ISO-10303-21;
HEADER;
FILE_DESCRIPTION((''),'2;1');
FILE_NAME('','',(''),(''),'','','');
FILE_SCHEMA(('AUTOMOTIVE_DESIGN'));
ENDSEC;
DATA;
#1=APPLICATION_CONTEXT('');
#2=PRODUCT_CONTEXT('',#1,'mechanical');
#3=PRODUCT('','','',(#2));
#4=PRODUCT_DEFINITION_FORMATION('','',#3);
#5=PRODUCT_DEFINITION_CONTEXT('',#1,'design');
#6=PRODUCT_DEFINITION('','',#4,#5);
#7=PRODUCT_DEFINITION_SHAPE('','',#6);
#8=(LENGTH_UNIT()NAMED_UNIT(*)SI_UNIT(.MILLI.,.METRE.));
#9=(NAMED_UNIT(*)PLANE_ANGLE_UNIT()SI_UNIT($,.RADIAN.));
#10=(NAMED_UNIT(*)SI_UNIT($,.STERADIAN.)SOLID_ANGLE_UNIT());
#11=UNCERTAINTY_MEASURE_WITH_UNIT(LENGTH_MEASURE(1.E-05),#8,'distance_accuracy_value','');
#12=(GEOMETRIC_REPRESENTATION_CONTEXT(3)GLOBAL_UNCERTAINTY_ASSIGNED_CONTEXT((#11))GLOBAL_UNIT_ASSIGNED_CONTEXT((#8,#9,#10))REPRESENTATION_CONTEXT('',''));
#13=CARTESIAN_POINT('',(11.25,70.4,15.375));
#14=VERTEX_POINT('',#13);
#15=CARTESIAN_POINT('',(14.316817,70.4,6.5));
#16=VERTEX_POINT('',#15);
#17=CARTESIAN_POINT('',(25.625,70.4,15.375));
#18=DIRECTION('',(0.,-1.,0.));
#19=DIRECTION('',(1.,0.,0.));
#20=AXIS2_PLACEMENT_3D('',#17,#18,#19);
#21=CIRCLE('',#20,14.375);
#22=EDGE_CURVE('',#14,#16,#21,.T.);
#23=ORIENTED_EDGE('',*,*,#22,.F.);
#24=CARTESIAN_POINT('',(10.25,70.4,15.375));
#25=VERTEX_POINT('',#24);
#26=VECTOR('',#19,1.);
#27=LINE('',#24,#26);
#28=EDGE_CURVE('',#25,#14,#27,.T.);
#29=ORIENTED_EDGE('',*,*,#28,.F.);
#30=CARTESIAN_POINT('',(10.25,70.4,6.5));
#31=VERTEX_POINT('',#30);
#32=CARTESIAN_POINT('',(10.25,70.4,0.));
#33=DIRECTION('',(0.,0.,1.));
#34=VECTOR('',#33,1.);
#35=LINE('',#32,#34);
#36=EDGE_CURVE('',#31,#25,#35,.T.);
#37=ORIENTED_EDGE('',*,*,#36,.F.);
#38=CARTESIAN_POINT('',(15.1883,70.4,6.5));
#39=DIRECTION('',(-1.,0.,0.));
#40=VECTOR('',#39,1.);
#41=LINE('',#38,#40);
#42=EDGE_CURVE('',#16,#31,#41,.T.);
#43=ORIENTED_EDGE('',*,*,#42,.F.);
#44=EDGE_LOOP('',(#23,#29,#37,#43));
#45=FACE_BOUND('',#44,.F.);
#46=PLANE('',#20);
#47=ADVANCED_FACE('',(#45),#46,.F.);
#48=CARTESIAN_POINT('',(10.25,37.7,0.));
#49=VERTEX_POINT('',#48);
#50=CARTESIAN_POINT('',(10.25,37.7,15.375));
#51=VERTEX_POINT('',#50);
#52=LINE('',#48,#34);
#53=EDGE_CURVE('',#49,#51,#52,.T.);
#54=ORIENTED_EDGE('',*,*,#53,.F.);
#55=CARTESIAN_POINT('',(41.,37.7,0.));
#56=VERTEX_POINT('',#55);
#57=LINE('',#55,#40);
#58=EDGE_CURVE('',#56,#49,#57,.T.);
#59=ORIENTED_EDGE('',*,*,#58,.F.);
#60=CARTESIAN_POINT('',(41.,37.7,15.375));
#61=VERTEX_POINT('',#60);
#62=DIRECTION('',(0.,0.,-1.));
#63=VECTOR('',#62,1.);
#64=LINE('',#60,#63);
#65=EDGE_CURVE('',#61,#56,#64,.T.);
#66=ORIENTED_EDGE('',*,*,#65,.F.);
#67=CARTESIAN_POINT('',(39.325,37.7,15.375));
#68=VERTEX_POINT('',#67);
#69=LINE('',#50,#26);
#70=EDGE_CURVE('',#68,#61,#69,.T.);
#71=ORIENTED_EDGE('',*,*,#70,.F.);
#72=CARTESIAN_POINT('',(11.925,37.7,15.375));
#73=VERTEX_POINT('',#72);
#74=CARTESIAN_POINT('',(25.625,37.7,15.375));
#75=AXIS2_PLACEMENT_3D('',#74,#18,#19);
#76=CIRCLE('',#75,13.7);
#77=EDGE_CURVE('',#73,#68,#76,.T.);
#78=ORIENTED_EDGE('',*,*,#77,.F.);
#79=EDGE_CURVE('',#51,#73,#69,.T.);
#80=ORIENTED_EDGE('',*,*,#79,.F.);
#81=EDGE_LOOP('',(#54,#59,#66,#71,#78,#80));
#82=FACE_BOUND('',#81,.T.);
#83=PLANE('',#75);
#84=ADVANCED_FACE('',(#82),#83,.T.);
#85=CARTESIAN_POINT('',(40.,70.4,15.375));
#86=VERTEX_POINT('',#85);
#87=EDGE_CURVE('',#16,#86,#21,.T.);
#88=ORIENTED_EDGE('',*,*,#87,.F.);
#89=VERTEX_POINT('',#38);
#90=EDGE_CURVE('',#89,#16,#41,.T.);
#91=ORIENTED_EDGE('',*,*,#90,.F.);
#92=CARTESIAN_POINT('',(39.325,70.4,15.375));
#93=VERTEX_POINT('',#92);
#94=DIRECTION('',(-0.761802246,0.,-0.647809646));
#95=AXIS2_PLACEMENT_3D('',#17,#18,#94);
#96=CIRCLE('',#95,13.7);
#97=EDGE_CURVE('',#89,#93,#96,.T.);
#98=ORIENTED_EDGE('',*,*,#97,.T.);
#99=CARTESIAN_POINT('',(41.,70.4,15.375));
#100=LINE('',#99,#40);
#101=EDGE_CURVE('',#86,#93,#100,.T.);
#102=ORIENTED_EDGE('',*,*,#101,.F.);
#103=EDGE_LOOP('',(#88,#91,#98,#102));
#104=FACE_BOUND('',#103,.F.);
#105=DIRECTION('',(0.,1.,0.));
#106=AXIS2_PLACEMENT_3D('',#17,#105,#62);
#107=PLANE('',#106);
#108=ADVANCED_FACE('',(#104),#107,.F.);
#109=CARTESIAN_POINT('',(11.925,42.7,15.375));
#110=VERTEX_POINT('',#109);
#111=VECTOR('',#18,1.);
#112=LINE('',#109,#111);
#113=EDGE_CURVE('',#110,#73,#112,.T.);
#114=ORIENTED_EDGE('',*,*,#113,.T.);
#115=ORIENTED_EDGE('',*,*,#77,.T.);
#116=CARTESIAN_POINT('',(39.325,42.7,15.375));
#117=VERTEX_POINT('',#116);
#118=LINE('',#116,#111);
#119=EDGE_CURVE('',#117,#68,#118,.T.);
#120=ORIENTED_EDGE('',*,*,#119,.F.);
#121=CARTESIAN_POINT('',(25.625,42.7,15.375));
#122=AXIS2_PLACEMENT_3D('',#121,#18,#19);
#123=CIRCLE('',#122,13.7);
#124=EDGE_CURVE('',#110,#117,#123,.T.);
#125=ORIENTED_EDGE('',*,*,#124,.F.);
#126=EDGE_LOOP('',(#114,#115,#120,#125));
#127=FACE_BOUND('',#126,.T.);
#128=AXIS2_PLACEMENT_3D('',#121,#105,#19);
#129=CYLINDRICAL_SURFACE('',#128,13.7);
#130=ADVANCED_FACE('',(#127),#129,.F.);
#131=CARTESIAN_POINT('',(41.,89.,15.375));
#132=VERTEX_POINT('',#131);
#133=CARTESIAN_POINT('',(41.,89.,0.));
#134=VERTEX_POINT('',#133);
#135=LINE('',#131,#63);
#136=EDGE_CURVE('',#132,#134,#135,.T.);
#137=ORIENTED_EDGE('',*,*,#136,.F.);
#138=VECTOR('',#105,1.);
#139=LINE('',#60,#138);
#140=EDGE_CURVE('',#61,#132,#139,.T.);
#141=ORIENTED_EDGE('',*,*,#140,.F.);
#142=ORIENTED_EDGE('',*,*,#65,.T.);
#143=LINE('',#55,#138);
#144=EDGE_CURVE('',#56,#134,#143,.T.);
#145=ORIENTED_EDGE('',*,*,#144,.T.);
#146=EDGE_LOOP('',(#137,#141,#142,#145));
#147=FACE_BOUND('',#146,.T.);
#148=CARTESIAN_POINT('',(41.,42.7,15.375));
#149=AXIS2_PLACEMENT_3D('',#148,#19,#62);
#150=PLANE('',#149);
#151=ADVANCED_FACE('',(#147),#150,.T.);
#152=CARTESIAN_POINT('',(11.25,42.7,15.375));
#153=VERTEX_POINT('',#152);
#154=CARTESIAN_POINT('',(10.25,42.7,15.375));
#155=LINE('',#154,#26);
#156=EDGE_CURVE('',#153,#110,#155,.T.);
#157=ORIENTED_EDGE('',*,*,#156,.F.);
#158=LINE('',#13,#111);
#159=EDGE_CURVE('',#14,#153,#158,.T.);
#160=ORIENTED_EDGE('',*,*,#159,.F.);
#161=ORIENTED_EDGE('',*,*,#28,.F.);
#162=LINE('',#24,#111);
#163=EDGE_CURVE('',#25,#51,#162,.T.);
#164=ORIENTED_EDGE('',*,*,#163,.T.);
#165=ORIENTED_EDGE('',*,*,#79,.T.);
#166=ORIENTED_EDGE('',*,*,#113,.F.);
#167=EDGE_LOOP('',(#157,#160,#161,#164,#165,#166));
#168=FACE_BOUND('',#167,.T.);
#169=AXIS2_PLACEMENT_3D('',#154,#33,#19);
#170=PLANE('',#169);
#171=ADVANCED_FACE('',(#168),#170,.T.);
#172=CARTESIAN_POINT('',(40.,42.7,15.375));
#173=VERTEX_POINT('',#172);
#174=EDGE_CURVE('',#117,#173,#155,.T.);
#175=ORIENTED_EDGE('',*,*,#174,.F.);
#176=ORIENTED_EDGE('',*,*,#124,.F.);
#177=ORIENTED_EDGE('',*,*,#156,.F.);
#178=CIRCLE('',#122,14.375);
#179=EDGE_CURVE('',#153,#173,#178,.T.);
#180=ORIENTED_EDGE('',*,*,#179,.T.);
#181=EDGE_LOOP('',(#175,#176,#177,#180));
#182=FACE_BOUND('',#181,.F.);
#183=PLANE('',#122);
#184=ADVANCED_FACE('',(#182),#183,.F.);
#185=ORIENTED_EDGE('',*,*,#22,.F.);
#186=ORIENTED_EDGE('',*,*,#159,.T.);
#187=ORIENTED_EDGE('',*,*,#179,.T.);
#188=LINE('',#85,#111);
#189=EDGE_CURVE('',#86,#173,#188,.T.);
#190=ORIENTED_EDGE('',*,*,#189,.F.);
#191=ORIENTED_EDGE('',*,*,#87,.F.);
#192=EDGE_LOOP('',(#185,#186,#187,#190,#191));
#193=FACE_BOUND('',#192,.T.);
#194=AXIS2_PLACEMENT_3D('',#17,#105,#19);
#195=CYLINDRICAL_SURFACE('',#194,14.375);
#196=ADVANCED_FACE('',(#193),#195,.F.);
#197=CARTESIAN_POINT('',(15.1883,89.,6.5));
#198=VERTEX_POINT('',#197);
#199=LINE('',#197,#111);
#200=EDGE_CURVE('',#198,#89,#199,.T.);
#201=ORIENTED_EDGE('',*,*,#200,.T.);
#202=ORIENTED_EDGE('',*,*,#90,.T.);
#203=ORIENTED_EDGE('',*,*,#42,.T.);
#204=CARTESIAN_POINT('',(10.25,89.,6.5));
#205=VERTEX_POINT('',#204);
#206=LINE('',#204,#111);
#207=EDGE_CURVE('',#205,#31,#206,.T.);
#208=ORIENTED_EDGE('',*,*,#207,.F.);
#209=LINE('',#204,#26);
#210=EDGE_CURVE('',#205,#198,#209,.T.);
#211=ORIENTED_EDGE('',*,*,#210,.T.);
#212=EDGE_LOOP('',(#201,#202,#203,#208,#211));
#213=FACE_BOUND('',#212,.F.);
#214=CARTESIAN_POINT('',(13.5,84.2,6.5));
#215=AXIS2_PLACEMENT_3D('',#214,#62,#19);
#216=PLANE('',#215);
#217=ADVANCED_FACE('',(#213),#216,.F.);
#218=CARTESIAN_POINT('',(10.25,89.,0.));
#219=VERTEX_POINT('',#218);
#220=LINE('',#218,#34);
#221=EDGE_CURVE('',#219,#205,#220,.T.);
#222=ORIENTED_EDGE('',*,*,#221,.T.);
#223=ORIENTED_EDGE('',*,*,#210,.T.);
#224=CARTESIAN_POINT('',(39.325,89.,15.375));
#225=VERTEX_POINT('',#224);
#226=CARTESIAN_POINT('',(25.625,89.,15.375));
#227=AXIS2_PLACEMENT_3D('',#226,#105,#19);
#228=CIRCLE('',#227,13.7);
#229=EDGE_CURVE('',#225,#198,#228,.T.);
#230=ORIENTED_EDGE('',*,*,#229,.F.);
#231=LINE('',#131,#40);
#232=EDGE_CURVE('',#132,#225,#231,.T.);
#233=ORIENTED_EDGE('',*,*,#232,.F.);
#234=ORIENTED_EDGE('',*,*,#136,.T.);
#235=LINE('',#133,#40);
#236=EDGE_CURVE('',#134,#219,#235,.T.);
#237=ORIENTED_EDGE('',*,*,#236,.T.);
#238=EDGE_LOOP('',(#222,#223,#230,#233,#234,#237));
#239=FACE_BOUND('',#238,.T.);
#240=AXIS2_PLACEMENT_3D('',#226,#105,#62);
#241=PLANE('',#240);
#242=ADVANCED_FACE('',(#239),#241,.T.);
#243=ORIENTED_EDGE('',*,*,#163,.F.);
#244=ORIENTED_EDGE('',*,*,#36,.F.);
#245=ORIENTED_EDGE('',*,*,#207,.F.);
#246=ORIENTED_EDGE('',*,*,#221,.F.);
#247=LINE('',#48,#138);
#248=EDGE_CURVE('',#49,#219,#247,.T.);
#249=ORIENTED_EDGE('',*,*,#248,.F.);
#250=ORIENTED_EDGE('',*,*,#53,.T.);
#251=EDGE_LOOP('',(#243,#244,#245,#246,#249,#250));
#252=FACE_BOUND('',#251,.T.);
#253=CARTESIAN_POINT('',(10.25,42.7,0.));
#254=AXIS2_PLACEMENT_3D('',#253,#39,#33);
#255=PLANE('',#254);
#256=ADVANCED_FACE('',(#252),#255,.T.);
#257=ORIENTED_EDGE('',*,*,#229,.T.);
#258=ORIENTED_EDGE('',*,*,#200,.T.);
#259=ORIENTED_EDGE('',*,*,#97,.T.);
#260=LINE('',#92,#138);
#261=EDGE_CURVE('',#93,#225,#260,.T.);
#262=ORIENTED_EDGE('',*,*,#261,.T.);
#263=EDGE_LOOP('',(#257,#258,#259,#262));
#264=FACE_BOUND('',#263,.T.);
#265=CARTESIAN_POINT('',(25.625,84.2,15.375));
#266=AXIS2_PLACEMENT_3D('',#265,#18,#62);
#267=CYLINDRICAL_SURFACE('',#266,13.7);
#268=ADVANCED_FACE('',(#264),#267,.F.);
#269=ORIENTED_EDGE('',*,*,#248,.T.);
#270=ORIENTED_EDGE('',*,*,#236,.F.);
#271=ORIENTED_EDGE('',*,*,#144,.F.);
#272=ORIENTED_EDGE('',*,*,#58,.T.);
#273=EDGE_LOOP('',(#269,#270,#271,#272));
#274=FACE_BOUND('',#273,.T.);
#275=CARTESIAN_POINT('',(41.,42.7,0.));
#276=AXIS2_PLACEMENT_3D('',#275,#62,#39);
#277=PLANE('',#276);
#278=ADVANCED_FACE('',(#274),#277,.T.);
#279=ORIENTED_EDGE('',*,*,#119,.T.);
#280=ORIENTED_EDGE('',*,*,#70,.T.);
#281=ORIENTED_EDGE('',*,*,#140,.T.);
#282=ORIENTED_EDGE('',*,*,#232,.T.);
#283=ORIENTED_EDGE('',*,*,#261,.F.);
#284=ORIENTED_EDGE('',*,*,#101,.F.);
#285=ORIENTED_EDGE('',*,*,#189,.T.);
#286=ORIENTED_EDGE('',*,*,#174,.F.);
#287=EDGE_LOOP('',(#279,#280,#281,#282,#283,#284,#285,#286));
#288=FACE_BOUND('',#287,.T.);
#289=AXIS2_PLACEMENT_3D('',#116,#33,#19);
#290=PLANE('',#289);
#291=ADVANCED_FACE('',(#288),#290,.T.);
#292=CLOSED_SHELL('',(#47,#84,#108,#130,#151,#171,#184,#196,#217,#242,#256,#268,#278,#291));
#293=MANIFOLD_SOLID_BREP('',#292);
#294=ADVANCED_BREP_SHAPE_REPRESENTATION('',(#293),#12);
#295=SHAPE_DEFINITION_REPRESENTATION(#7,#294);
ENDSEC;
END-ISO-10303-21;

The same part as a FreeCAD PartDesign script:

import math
import FreeCAD as App
import Part
import Sketcher

V = App.Vector
Q = App.Units.Quantity

doc = App.newDocument("Part")
body = doc.addObject("PartDesign::Body", "Body")

# Sketch on XZ plane
sketch1 = body.newObject("Sketcher::SketchObject", "Sketch")
sketch1.AttachmentSupport = (doc.getObject("XZ_Plane"), [""])
sketch1.MapMode = "FlatFace"
sketch1.AttachmentOffset = App.Placement(V(0, 0, -84.2), App.Rotation())
sketch1.addGeometry([
    Part.LineSegment(V(39.3, 15.4, 0), V(41, 15.4, 0)),  # 0
    Part.LineSegment(V(41, 15.4, 0), V(41, 0, 0)),  # 1
    Part.LineSegment(V(41, 0, 0), V(10.2, 0, 0)),  # 2
    Part.LineSegment(V(10.2, 0, 0), V(10.2, 6.5, 0)),  # 3
    Part.LineSegment(V(10.2, 6.5, 0), V(15.2, 6.5, 0)),  # 4
    Part.ArcOfCircle(Part.Circle(V(25.6, 15.4, 0), V(0, 0, 1), 13.7), math.radians(-140), math.radians(0)),  # 5
], False)
sketch1.addConstraint([
    Sketcher.Constraint("Coincident", 0, 2, 1, 1),
    Sketcher.Constraint("Coincident", 1, 2, 2, 1),
    Sketcher.Constraint("Coincident", 2, 2, 3, 1),
    Sketcher.Constraint("Coincident", 3, 2, 4, 1),
    Sketcher.Constraint("Coincident", 4, 2, 5, 1),
    Sketcher.Constraint("Coincident", 5, 2, 0, 1),
    Sketcher.Constraint("Horizontal", 0),
    Sketcher.Constraint("Vertical", 1),
    Sketcher.Constraint("Horizontal", 2),
    Sketcher.Constraint("Vertical", 3),
    Sketcher.Constraint("Horizontal", 4),
    Sketcher.Constraint("PointOnObject", 1, 2, -1),
    Sketcher.Constraint("Horizontal", 5, 3, 0, 2),
    Sketcher.Constraint("DistanceY", 3, 1, 3, 2, Q("6.5 mm")),
    Sketcher.Constraint("Radius", 5, Q("13.7 mm")),
    Sketcher.Constraint("DistanceY", 1, 2, 1, 1, Q("15.375 mm")),
    Sketcher.Constraint("DistanceX", -1, 1, 0, 2, Q("41 mm")),
    Sketcher.Constraint("DistanceX", 5, 3, 0, 2, Q("15.375 mm")),
    Sketcher.Constraint("DistanceX", 2, 2, 5, 3, Q("15.375 mm")),
])
pad1 = body.newObject("PartDesign::Pad", "Pad")
pad1.Profile = sketch1
pad1.Type = "TwoLengths"
pad1.Length = 4.8
pad1.Length2 = 13.8
pad1.Reversed = True

# Sketch on XZ plane
sketch2 = body.newObject("Sketcher::SketchObject", "Sketch001")
sketch2.AttachmentSupport = (doc.getObject("XZ_Plane"), [""])
sketch2.MapMode = "FlatFace"
sketch2.AttachmentOffset = App.Placement(V(0, 0, -70.4), App.Rotation())
sketch2.addGeometry([
    Part.LineSegment(V(41, 15.4, 0), V(40, 15.4, 0)),  # 0
    Part.ArcOfCircle(Part.Circle(V(25.6, 15.4, 0), V(0, 0, 1), 14.4), math.radians(180), math.radians(360)),  # 1
    Part.LineSegment(V(11.2, 15.4, 0), V(10.2, 15.4, 0)),  # 2
    Part.LineSegment(V(10.2, 15.4, 0), V(10.2, 0, 0)),  # 3
    Part.LineSegment(V(10.2, 0, 0), V(41, 0, 0)),  # 4
    Part.LineSegment(V(41, 0, 0), V(41, 15.4, 0)),  # 5
], False)
sketch2.addConstraint([
    Sketcher.Constraint("Coincident", 0, 2, 1, 2),
    Sketcher.Constraint("Coincident", 1, 1, 2, 1),
    Sketcher.Constraint("Coincident", 2, 2, 3, 1),
    Sketcher.Constraint("Coincident", 3, 2, 4, 1),
    Sketcher.Constraint("Coincident", 4, 2, 5, 1),
    Sketcher.Constraint("Coincident", 5, 2, 0, 1),
    Sketcher.Constraint("Horizontal", 0),
    Sketcher.Constraint("Horizontal", 2),
    Sketcher.Constraint("Vertical", 3),
    Sketcher.Constraint("Horizontal", 4),
    Sketcher.Constraint("Vertical", 5),
    Sketcher.Constraint("PointOnObject", 3, 2, -1),
    Sketcher.Constraint("Horizontal", 1, 3, 0, 2),
    Sketcher.Constraint("Horizontal", 0, 2, 1, 1),
    Sketcher.Constraint("Equal", 0, 2),
    Sketcher.Constraint("DistanceX", 0, 2, 0, 1, Q("1 mm")),
    Sketcher.Constraint("DistanceY", 3, 2, 3, 1, Q("15.375 mm")),
    Sketcher.Constraint("DistanceX", -1, 1, 0, 2, Q("40 mm")),
    Sketcher.Constraint("Radius", 1, Q("14.375 mm")),
])
pad2 = body.newObject("PartDesign::Pad", "Pad001")
pad2.Profile = sketch2
pad2.Length = 27.7

# Sketch on XZ plane
sketch3 = body.newObject("Sketcher::SketchObject", "Sketch002")
sketch3.AttachmentSupport = (doc.getObject("XZ_Plane"), [""])
sketch3.MapMode = "FlatFace"
sketch3.AttachmentOffset = App.Placement(V(0, 0, -42.7), App.Rotation())
sketch3.addGeometry([
    Part.LineSegment(V(41, 15.4, 0), V(39.3, 15.4, 0)),  # 0
    Part.ArcOfCircle(Part.Circle(V(25.6, 15.4, 0), V(0, 0, 1), 13.7), math.radians(180), math.radians(360)),  # 1
    Part.LineSegment(V(11.9, 15.4, 0), V(10.2, 15.4, 0)),  # 2
    Part.LineSegment(V(10.2, 15.4, 0), V(10.2, 0, 0)),  # 3
    Part.LineSegment(V(10.2, 0, 0), V(41, 0, 0)),  # 4
    Part.LineSegment(V(41, 0, 0), V(41, 15.4, 0)),  # 5
], False)
sketch3.addConstraint([
    Sketcher.Constraint("Coincident", 0, 2, 1, 2),
    Sketcher.Constraint("Coincident", 1, 1, 2, 1),
    Sketcher.Constraint("Coincident", 2, 2, 3, 1),
    Sketcher.Constraint("Coincident", 3, 2, 4, 1),
    Sketcher.Constraint("Coincident", 4, 2, 5, 1),
    Sketcher.Constraint("Coincident", 5, 2, 0, 1),
    Sketcher.Constraint("Horizontal", 0),
    Sketcher.Constraint("Horizontal", 2),
    Sketcher.Constraint("Vertical", 3),
    Sketcher.Constraint("Horizontal", 4),
    Sketcher.Constraint("Vertical", 5),
    Sketcher.Constraint("PointOnObject", 3, 2, -1),
    Sketcher.Constraint("Horizontal", 1, 3, 0, 2),
    Sketcher.Constraint("Horizontal", 0, 2, 1, 1),
    Sketcher.Constraint("Equal", 0, 2),
    Sketcher.Constraint("Radius", 1, Q("13.7 mm")),
    Sketcher.Constraint("DistanceY", 3, 2, 3, 1, Q("15.375 mm")),
    Sketcher.Constraint("DistanceX", -1, 1, 4, 2, Q("41 mm")),
    Sketcher.Constraint("DistanceX", 2, 2, 1, 3, Q("15.375 mm")),
])
pad3 = body.newObject("PartDesign::Pad", "Pad002")
pad3.Profile = sketch3
pad3.Length = 5

doc.recompute()
